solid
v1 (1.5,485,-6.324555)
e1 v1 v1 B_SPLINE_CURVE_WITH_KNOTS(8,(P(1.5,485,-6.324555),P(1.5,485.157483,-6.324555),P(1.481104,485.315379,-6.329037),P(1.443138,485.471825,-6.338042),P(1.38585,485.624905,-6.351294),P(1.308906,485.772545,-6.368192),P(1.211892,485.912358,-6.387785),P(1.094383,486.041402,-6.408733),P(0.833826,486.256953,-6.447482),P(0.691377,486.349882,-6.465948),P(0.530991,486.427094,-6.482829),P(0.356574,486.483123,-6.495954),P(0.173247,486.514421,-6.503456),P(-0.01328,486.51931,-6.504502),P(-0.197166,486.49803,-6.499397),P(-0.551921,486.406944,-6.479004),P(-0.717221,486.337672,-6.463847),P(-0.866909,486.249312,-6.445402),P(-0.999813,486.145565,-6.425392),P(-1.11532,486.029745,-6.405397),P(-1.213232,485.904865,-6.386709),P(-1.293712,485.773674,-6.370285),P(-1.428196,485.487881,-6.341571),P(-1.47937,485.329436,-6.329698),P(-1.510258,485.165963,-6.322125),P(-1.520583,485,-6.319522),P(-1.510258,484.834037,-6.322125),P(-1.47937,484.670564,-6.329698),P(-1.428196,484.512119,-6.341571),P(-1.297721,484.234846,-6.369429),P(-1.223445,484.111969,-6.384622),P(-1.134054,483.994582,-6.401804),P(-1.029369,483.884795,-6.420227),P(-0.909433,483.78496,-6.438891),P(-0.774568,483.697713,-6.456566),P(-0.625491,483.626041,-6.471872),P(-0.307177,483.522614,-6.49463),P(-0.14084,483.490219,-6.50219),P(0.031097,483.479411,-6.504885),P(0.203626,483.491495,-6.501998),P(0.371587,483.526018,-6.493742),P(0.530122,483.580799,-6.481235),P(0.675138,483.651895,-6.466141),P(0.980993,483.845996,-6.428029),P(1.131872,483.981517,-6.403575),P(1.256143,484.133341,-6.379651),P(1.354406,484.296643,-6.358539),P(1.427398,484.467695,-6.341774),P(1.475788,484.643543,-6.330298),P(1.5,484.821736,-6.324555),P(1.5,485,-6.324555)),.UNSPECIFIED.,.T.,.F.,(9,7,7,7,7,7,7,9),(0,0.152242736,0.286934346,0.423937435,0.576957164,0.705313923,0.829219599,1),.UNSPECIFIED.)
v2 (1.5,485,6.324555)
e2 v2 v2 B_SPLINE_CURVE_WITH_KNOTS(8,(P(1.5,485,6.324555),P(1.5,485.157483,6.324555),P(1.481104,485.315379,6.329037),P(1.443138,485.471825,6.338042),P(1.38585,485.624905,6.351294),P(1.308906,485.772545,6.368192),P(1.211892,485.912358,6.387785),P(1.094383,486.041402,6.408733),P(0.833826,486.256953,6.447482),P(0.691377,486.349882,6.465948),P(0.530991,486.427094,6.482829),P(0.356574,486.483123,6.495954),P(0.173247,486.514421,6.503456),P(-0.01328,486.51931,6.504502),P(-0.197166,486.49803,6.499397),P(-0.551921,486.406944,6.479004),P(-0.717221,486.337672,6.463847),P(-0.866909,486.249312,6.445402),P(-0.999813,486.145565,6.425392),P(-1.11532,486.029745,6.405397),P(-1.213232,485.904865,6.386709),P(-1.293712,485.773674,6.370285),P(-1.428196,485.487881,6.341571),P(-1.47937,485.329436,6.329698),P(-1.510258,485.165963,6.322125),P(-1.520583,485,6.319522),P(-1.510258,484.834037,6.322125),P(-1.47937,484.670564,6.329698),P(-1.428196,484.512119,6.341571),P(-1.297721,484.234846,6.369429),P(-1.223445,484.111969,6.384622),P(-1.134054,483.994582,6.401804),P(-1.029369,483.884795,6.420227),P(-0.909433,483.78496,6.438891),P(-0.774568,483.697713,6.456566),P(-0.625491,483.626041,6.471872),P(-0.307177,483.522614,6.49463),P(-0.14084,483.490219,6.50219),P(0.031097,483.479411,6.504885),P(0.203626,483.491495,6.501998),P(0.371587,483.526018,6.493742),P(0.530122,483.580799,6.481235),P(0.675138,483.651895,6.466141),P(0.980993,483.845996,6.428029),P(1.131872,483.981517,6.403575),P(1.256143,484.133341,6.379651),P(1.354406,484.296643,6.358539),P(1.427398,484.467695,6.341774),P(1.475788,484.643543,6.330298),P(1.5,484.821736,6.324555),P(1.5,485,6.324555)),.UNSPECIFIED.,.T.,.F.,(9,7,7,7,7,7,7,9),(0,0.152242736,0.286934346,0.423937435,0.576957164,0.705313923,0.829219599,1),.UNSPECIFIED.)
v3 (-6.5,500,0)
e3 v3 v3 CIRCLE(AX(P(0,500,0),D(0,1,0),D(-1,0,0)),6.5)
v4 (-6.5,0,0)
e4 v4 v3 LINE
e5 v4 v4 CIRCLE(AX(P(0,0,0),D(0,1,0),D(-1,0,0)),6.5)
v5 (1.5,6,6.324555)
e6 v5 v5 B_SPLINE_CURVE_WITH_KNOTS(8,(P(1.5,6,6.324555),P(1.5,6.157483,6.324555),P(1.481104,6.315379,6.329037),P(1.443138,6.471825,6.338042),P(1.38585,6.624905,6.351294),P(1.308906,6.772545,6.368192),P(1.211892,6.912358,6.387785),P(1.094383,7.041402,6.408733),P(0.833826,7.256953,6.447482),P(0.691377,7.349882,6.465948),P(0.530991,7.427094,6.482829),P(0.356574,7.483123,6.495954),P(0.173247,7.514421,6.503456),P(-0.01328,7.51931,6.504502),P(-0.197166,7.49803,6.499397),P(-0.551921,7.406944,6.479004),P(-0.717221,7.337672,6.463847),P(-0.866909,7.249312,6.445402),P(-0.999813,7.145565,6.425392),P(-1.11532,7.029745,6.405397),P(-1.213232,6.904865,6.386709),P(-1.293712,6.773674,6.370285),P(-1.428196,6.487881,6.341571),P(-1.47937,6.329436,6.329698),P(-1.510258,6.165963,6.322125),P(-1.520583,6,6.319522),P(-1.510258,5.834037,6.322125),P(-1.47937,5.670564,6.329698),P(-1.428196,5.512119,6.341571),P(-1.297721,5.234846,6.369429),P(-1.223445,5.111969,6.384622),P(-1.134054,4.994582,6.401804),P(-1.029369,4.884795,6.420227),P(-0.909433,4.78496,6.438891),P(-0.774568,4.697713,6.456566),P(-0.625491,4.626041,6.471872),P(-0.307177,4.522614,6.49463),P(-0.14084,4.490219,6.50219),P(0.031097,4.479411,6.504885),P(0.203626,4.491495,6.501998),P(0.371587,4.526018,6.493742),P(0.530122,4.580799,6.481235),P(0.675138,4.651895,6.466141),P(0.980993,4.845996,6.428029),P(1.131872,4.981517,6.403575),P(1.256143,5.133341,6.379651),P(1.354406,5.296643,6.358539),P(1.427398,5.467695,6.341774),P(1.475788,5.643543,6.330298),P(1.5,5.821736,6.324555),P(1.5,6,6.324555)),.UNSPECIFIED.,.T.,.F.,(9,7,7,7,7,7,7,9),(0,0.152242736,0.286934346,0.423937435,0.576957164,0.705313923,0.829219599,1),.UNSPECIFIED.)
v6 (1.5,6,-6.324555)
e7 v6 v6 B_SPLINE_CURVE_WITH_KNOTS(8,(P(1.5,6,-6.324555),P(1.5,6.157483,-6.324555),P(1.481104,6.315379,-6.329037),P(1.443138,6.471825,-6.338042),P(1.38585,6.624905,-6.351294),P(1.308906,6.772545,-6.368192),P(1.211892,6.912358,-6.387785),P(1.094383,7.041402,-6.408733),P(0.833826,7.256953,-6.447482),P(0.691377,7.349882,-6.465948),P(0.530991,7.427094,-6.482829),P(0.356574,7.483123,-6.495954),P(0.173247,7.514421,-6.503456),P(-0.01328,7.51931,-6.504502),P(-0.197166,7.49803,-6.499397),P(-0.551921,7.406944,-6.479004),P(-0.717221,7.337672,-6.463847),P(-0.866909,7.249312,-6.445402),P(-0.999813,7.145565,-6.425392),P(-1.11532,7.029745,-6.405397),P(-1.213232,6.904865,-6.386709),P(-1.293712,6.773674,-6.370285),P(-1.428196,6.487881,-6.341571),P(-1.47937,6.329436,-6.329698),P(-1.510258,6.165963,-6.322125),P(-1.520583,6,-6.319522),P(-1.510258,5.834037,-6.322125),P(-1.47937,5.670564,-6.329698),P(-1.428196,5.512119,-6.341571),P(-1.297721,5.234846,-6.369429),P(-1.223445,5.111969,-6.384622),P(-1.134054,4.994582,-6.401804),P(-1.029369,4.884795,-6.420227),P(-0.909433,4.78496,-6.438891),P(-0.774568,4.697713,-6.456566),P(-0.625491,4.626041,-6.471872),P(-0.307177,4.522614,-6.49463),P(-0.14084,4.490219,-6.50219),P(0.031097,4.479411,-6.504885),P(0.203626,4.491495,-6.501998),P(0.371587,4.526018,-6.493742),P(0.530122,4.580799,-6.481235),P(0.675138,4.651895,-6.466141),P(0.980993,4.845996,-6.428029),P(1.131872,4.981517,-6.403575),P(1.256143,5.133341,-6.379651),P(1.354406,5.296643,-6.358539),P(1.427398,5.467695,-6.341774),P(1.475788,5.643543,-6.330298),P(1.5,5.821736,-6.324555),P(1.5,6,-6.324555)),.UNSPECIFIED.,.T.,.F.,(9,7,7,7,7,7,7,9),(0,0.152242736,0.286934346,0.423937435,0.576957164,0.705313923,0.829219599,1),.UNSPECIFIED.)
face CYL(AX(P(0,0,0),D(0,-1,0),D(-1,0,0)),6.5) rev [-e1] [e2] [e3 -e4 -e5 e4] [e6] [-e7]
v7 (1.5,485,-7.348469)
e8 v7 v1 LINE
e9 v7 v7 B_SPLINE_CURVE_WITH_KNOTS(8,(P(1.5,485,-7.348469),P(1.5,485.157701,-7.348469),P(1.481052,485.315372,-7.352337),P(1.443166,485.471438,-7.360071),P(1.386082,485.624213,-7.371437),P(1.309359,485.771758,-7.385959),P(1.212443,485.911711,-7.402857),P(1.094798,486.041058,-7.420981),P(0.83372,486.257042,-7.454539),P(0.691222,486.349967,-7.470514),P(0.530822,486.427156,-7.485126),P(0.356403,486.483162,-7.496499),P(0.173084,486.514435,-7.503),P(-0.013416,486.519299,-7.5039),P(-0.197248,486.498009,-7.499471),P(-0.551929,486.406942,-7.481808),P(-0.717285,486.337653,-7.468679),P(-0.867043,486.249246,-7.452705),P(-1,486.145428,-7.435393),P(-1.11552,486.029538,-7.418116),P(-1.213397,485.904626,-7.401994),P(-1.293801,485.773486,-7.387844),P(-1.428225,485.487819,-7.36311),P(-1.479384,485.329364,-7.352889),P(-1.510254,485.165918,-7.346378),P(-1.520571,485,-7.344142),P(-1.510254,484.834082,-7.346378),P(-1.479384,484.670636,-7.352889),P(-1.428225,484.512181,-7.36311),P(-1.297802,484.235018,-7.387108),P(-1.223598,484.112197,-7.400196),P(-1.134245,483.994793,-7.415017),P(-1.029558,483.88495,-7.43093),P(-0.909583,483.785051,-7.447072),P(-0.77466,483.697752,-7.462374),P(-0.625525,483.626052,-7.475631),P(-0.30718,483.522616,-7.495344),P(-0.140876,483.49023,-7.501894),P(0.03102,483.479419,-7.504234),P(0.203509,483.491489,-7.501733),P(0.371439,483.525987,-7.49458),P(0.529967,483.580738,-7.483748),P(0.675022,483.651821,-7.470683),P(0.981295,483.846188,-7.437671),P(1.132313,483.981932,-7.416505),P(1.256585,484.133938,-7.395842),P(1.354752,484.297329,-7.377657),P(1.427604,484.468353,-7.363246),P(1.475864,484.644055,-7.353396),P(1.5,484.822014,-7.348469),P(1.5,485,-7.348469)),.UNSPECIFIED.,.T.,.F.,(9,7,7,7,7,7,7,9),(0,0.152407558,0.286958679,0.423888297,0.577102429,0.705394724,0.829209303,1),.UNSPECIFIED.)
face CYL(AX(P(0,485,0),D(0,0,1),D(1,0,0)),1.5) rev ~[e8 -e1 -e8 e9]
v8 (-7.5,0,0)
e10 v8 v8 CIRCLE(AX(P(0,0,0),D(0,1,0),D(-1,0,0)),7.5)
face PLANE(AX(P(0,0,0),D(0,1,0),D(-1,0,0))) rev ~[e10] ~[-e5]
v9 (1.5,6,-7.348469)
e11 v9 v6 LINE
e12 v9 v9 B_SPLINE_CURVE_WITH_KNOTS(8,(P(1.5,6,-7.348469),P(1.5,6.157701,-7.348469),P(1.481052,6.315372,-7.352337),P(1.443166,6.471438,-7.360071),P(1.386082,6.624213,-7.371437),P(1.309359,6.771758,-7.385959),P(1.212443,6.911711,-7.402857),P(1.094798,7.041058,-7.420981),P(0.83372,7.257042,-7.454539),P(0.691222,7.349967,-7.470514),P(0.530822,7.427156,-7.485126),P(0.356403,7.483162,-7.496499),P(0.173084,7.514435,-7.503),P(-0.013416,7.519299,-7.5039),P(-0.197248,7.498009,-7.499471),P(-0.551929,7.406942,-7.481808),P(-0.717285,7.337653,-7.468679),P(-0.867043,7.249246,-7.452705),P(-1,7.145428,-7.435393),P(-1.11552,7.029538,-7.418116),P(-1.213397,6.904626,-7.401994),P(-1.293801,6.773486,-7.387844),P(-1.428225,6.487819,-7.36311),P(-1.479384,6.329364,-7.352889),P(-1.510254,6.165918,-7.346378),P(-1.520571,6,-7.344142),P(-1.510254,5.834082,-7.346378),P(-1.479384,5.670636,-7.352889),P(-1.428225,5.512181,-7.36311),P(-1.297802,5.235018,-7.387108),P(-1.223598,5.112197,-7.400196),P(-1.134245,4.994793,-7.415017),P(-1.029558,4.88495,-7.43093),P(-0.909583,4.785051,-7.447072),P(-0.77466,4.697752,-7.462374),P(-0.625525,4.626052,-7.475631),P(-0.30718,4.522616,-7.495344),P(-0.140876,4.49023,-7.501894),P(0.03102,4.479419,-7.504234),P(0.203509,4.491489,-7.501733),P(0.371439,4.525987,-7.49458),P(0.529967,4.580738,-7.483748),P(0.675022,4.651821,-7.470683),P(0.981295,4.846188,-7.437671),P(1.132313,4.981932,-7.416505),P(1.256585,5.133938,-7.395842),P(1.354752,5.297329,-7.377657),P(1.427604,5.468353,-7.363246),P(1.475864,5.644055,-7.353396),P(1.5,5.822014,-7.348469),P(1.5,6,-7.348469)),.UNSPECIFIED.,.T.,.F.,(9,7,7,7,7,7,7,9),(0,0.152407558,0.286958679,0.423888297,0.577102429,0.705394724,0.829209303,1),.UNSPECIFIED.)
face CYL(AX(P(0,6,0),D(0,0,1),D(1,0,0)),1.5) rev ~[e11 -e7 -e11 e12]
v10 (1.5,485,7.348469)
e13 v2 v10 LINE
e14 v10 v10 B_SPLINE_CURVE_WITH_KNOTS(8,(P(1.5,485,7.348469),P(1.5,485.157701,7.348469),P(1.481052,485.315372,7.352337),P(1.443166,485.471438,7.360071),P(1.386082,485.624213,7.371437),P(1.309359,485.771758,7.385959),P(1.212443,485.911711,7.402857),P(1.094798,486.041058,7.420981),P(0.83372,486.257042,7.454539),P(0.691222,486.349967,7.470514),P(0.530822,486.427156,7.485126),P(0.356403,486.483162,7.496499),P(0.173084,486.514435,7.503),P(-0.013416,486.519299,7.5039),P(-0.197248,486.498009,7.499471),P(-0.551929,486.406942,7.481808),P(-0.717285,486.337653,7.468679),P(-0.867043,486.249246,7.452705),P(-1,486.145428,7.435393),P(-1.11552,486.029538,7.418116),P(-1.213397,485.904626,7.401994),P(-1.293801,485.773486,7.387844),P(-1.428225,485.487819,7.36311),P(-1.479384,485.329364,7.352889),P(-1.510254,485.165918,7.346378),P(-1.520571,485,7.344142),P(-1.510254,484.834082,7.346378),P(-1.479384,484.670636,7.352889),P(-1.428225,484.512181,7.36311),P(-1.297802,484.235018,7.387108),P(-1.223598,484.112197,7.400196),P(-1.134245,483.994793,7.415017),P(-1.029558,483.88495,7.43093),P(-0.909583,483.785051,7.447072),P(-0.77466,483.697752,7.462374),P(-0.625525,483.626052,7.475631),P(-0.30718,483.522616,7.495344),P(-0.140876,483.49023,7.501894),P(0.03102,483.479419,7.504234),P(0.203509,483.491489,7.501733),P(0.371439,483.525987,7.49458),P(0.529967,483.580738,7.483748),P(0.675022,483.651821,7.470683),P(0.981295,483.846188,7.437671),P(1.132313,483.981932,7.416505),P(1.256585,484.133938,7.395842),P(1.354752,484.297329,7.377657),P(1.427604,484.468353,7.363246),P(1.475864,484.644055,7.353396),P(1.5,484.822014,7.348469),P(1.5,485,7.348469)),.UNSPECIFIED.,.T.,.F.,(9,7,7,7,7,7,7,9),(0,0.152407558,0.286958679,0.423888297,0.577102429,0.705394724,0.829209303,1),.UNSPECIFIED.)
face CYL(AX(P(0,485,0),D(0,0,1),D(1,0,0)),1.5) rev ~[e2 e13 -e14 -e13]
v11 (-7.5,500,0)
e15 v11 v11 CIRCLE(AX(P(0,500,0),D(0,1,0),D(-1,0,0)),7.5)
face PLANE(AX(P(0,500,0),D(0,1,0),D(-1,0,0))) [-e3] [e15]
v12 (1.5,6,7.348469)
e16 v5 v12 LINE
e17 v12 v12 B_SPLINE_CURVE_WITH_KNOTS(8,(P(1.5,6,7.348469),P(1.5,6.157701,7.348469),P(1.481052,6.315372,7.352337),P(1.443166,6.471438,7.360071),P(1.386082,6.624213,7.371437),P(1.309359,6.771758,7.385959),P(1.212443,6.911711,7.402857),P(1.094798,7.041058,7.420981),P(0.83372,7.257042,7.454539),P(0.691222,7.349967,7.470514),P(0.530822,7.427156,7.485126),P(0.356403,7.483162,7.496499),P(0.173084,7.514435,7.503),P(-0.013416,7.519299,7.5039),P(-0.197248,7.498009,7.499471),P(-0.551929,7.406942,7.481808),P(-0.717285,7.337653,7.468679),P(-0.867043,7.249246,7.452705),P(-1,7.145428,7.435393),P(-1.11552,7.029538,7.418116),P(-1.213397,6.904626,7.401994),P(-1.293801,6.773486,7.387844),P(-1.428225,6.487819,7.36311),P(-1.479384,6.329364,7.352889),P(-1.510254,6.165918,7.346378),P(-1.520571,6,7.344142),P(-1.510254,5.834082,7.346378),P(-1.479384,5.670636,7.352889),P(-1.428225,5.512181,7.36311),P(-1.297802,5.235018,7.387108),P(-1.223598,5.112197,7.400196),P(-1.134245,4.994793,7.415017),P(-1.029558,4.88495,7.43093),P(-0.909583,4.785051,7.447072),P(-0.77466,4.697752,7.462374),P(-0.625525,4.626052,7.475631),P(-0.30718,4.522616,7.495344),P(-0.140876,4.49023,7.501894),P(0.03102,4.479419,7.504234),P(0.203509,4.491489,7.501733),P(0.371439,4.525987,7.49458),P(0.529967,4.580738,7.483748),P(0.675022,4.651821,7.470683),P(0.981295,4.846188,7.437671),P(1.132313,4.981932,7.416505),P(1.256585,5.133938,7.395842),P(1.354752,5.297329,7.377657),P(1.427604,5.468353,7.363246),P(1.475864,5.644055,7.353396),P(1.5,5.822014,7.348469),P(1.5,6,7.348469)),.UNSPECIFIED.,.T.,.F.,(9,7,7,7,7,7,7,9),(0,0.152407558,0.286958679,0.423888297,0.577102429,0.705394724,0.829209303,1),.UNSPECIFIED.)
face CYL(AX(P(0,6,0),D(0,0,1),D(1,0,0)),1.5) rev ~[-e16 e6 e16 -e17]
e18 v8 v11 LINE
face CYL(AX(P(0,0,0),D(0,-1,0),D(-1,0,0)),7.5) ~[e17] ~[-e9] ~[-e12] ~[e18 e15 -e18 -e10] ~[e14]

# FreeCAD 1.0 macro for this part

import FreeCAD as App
import Part
import Sketcher

V = App.Vector

doc = App.newDocument("Part")
body = doc.addObject("PartDesign::Body", "Body")

# Sketch on XZ plane
sketch1 = body.newObject("Sketcher::SketchObject", "Sketch")
sketch1.AttachmentSupport = (doc.getObject("XZ_Plane"), [""])
sketch1.MapMode = "FlatFace"
sketch1.addGeometry(Part.Circle(V(0, 0, 0), V(0, 0, 1), 8), False)
sketch1.addGeometry(Part.Circle(V(0, 0, 0), V(0, 0, 1), 6), False)
sketch1.addConstraint(Sketcher.Constraint("Coincident", 0, 3, -1, 1))
sketch1.addConstraint(Sketcher.Constraint("Coincident", 1, 3, -1, 1))
sketch1.addConstraint(Sketcher.Constraint("Diameter", 0, 15.0))
sketch1.addConstraint(Sketcher.Constraint("Diameter", 1, 13.0))
pad1 = body.newObject("PartDesign::Pad", "Pad")
pad1.Profile = sketch1
pad1.Length = 500
pad1.Reversed = True

# Sketch on XY plane
sketch2 = body.newObject("Sketcher::SketchObject", "Sketch001")
sketch2.AttachmentSupport = (doc.getObject("XY_Plane"), [""])
sketch2.MapMode = "FlatFace"
sketch2.addGeometry(Part.Circle(V(0, 6, 0), V(0, 0, 1), 1.5), False)
sketch2.addGeometry(Part.Circle(V(0, 485, 0), V(0, 0, 1), 1.5), False)
sketch2.addConstraint(Sketcher.Constraint("Equal", 0, 1))
sketch2.addConstraint(Sketcher.Constraint("PointOnObject", 0, 3, -2))
sketch2.addConstraint(Sketcher.Constraint("PointOnObject", 1, 3, -2))
sketch2.addConstraint(Sketcher.Constraint("Diameter", 0, 3.0))
sketch2.addConstraint(Sketcher.Constraint("DistanceY", -1, 1, 0, 3, 6.0))
sketch2.addConstraint(Sketcher.Constraint("DistanceY", -1, 1, 1, 3, 485.0))
pocket1 = body.newObject("PartDesign::Pocket", "Pocket")
pocket1.Profile = sketch2
pocket1.Type = "ThroughAll"
pocket1.Midplane = True

doc.recompute()
